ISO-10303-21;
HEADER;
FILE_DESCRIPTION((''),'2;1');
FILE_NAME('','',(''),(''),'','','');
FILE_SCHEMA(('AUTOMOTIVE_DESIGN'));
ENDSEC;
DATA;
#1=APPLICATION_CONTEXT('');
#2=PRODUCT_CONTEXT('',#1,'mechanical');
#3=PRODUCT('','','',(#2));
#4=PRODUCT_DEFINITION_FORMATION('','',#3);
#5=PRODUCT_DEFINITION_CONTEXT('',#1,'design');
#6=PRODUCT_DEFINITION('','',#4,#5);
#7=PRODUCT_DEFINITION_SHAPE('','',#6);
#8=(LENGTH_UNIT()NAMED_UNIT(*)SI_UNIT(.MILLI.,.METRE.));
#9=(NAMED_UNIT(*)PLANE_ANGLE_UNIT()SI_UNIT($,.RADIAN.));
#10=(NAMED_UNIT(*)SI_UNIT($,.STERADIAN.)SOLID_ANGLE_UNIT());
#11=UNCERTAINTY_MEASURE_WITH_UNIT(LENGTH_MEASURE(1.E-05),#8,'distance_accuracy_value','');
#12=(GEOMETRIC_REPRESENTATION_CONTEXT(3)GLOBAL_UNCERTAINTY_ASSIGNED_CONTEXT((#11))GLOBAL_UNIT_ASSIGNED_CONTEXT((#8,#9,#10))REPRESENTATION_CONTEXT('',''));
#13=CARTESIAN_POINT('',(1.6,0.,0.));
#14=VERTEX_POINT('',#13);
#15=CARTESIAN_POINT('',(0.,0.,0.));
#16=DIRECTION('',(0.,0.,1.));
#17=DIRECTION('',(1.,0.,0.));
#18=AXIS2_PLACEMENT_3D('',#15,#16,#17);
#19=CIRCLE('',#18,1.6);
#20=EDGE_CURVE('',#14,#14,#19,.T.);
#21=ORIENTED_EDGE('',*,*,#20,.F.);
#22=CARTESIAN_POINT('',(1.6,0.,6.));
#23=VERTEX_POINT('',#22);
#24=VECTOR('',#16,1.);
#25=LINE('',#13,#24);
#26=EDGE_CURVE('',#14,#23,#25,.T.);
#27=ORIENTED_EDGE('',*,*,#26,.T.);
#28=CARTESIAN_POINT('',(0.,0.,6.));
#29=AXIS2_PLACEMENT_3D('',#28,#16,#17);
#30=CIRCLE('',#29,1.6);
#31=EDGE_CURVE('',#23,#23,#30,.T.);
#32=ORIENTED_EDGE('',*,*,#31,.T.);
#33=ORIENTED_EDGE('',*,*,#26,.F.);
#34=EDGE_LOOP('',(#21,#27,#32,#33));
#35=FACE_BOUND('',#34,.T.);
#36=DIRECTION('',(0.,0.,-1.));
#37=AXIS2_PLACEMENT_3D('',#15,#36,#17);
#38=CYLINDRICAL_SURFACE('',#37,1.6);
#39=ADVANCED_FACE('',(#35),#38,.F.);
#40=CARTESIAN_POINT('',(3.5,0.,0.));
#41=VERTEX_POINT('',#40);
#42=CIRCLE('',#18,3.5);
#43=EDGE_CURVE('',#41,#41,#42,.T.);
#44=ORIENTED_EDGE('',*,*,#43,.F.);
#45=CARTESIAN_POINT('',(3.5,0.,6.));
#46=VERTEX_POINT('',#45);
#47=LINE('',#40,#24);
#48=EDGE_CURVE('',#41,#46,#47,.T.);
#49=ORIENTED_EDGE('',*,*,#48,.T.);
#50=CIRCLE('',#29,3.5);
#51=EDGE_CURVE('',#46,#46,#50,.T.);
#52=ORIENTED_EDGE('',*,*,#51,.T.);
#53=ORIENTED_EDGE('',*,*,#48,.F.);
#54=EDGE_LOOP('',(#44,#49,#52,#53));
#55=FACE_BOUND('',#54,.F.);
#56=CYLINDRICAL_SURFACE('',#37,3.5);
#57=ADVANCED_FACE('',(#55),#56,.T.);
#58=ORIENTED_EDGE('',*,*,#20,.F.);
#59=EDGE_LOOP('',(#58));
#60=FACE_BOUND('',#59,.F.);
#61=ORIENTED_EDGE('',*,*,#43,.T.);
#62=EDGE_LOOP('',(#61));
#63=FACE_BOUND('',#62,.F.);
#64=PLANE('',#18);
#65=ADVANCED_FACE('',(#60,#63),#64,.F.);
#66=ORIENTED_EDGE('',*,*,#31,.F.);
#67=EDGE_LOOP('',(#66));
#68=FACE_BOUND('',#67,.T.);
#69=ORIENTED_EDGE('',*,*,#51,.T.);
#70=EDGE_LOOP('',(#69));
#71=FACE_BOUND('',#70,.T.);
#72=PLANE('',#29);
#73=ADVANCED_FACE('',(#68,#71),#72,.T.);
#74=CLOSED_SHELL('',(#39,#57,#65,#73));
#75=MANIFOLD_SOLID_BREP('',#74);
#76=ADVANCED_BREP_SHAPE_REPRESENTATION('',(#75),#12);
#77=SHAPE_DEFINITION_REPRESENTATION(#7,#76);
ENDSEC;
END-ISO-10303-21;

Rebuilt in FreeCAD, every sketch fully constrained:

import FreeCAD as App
import Part
import Sketcher
from FreeCAD import Vector
Q = App.Units.Quantity

doc = App.newDocument("Part")
body = doc.addObject("PartDesign::Body", "Body")

# Sketch on XY plane
sketch1 = body.newObject("Sketcher::SketchObject", "Sketch")
sketch1.AttachmentSupport = (doc.getObject("XY_Plane"), [""])
sketch1.MapMode = "FlatFace"
sketch1.addGeometry(Part.Circle(Vector(0, 0, 0), Vector(0, 0, 1), 3.5), False)
sketch1.addGeometry(Part.Circle(Vector(0, 0, 0), Vector(0, 0, 1), 1.6), False)
sketch1.addConstraint(Sketcher.Constraint("Coincident", 0, 3, -1, 1))
sketch1.addConstraint(Sketcher.Constraint("Coincident", 1, 3, -1, 1))
sketch1.addConstraint(Sketcher.Constraint("Diameter", 0, Q("7 mm")))
sketch1.addConstraint(Sketcher.Constraint("Diameter", 1, Q("3.2 mm")))
pad1 = body.newObject("PartDesign::Pad", "Pad")
pad1.Profile = sketch1
pad1.Length = 6

doc.recompute()
